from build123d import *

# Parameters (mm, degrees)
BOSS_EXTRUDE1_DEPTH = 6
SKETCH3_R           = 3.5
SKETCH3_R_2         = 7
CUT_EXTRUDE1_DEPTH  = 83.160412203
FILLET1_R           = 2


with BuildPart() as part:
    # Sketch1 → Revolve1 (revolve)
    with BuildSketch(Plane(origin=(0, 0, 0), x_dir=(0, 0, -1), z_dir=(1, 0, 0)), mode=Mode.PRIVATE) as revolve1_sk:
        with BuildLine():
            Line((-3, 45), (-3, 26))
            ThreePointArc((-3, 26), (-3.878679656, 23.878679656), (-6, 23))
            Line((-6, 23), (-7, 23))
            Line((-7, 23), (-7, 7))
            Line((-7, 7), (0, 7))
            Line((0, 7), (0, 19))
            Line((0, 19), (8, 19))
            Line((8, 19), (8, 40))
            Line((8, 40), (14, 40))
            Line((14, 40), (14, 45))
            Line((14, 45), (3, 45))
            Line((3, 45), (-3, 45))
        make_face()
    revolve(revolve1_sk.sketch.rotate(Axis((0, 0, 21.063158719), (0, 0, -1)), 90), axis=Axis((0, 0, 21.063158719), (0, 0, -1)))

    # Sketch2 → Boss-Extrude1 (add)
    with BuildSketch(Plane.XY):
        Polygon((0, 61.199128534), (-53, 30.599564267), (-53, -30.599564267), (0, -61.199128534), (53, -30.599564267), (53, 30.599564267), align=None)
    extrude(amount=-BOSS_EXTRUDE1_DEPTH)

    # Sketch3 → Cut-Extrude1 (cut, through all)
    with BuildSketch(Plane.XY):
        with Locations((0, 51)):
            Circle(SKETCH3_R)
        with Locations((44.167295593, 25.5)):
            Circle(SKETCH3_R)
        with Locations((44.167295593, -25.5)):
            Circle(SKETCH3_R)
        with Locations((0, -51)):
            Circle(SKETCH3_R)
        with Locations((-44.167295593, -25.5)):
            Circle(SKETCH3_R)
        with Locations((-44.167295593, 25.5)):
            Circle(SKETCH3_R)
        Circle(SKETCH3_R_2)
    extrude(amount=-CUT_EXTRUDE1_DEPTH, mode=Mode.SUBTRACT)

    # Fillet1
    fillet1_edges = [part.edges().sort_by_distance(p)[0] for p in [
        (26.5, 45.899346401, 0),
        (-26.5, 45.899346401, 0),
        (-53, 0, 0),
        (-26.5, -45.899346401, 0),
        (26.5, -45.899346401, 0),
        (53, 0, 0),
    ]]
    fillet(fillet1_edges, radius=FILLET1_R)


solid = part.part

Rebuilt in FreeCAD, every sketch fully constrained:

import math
import FreeCAD as App
import Part
import Sketcher
Q = App.Units.Quantity


def edges_at(feature, points):
    """Names of the edges that pass closest to the given points."""
    edges = feature.Shape.Edges
    near = lambda p: min(range(len(edges)), key=lambda i: edges[i].distToShape(Part.Vertex(*p))[0])
    return sorted({f"Edge{near(p) + 1}" for p in points})


def add_polygon(sketch, points):
    """Adds a closed chain of lines whose ends are joined by coincident constraints."""
    first, n = sketch.GeometryCount, len(points)
    for a, b in zip(points, points[1:] + points[:1]):
        sketch.addGeometry(Part.LineSegment(App.Vector(*a, 0), App.Vector(*b, 0)), False)
    for i in range(n):
        sketch.addConstraint(Sketcher.Constraint("Coincident", first + i, 2, first + (i + 1) % n, 1))

doc = App.newDocument("Part")
body = doc.addObject("PartDesign::Body", "Body")

# Sketch on YZ plane
sketch1 = body.newObject("Sketcher::SketchObject", "Sketch")
sketch1.AttachmentSupport = (doc.getObject("YZ_Plane"), [""])
sketch1.MapMode = "FlatFace"
sketch1.addGeometry([
    Part.LineSegment(App.Vector(45, 3, 0), App.Vector(26, 3, 0)),  # 0
    Part.ArcOfCircle(Part.Circle(App.Vector(26, 6, 0), App.Vector(0, 0, 1), 3), math.radians(180), math.radians(270)),  # 1
    Part.LineSegment(App.Vector(23, 6, 0), App.Vector(23, 7, 0)),  # 2
    Part.LineSegment(App.Vector(23, 7, 0), App.Vector(7, 7, 0)),  # 3
    Part.LineSegment(App.Vector(7, 7, 0), App.Vector(7, 0, 0)),  # 4
    Part.LineSegment(App.Vector(7, 0, 0), App.Vector(19, 0, 0)),  # 5
    Part.LineSegment(App.Vector(19, 0, 0), App.Vector(19, -8, 0)),  # 6
    Part.LineSegment(App.Vector(19, -8, 0), App.Vector(40, -8, 0)),  # 7
    Part.LineSegment(App.Vector(40, -8, 0), App.Vector(40, -14, 0)),  # 8
    Part.LineSegment(App.Vector(40, -14, 0), App.Vector(45, -14, 0)),  # 9
    Part.LineSegment(App.Vector(45, -14, 0), App.Vector(45, 3, 0)),  # 10
], False)
sketch1.addConstraint([
    Sketcher.Constraint("Tangent", 0, 2, 1, 2),
    Sketcher.Constraint("Tangent", 1, 1, 2, 1),
    Sketcher.Constraint("Coincident", 2, 2, 3, 1),
    Sketcher.Constraint("Coincident", 3, 2, 4, 1),
    Sketcher.Constraint("Coincident", 4, 2, 5, 1),
    Sketcher.Constraint("Coincident", 5, 2, 6, 1),
    Sketcher.Constraint("Coincident", 6, 2, 7, 1),
    Sketcher.Constraint("Coincident", 7, 2, 8, 1),
    Sketcher.Constraint("Coincident", 8, 2, 9, 1),
    Sketcher.Constraint("Coincident", 9, 2, 10, 1),
    Sketcher.Constraint("Coincident", 10, 2, 0, 1),
    Sketcher.Constraint("Horizontal", 0),
    Sketcher.Constraint("Vertical", 2),
    Sketcher.Constraint("Horizontal", 3),
    Sketcher.Constraint("Vertical", 4),
    Sketcher.Constraint("Horizontal", 5),
    Sketcher.Constraint("Vertical", 6),
    Sketcher.Constraint("Horizontal", 7),
    Sketcher.Constraint("Vertical", 8),
    Sketcher.Constraint("Horizontal", 9),
    Sketcher.Constraint("Vertical", 10),
    Sketcher.Constraint("PointOnObject", 4, 2, -1),
    Sketcher.Constraint("Radius", 1, Q("3 mm")),
    Sketcher.Constraint("DistanceX", 0, 2, 0, 1, Q("19 mm")),
    Sketcher.Constraint("DistanceX", 3, 2, 3, 1, Q("16 mm")),
    Sketcher.Constraint("DistanceX", 5, 1, 5, 2, Q("12 mm")),
    Sketcher.Constraint("DistanceX", 7, 1, 7, 2, Q("21 mm")),
    Sketcher.Constraint("DistanceY", 2, 1, 2, 2, Q("1 mm")),
    Sketcher.Constraint("DistanceY", 4, 2, 4, 1, Q("7 mm")),
    Sketcher.Constraint("DistanceY", 6, 2, 6, 1, Q("8 mm")),
    Sketcher.Constraint("DistanceY", 8, 2, 8, 1, Q("6 mm")),
    Sketcher.Constraint("DistanceX", -1, 1, 1, 3, Q("26 mm")),
])
revolution = body.newObject("PartDesign::Revolution", "Revolution")
revolution.Profile = sketch1
revolution.ReferenceAxis = (sketch1, ["V_Axis"])
revolution.Angle = 360

# Sketch on XY plane
sketch2 = body.newObject("Sketcher::SketchObject", "Sketch001")
sketch2.AttachmentSupport = (doc.getObject("XY_Plane"), [""])
sketch2.MapMode = "FlatFace"
add_polygon(sketch2, [(0, 61.199129), (-53, 30.599564), (-53, -30.599564), (0, -61.199129), (53, -30.599564), (53, 30.599564)])  # lines 0-5
sketch2.addConstraint([
    Sketcher.Constraint("Vertical", 1),
    Sketcher.Constraint("Vertical", 4),
    Sketcher.Constraint("Symmetric", 0, 2, 3, 2, -1, 1),
    Sketcher.Constraint("Symmetric", 2, 2, 5, 2, -1, 1),
    Sketcher.Constraint("PointOnObject", 2, 2, -2),
    Sketcher.Constraint("Parallel", 2, 5),
    Sketcher.Constraint("Horizontal", 1, 2, 3, 2),
    Sketcher.Constraint("Angle", 0, Q("-150 deg")),
    Sketcher.Constraint("DistanceX", 0, 2, -1, 1, Q("53 mm")),
    Sketcher.Constraint("DistanceY", 1, 2, 1, 1, Q("61.199129 mm")),
])
pad1 = body.newObject("PartDesign::Pad", "Pad")
pad1.Profile = sketch2
pad1.Length = 6
pad1.Reversed = True

# Sketch on XY plane
sketch3 = body.newObject("Sketcher::SketchObject", "Sketch002")
sketch3.AttachmentSupport = (doc.getObject("XY_Plane"), [""])
sketch3.MapMode = "FlatFace"
sketch3.addGeometry([
    Part.Circle(App.Vector(0, 51, 0), App.Vector(0, 0, 1), 3.5),  # 0
    Part.Circle(App.Vector(44.167296, 25.5, 0), App.Vector(0, 0, 1), 3.5),  # 1
    Part.Circle(App.Vector(44.167296, -25.5, 0), App.Vector(0, 0, 1), 3.5),  # 2
    Part.Circle(App.Vector(0, -51, 0), App.Vector(0, 0, 1), 3.5),  # 3
    Part.Circle(App.Vector(-44.167296, -25.5, 0), App.Vector(0, 0, 1), 3.5),  # 4
    Part.Circle(App.Vector(-44.167296, 25.5, 0), App.Vector(0, 0, 1), 3.5),  # 5
    Part.Circle(App.Vector(0, 0, 0), App.Vector(0, 0, 1), 7),  # 6
], False)
sketch3.addConstraint([
    Sketcher.Constraint("Coincident", 6, 3, -1, 1),
    Sketcher.Constraint("Equal", 0, 1),
    Sketcher.Constraint("Equal", 1, 2),
    Sketcher.Constraint("Equal", 2, 3),
    Sketcher.Constraint("Equal", 3, 4),
    Sketcher.Constraint("Equal", 4, 5),
    Sketcher.Constraint("Symmetric", 0, 3, 3, 3, -1, 1),
    Sketcher.Constraint("Symmetric", 1, 3, 4, 3, -1, 1),
    Sketcher.Constraint("Symmetric", 2, 3, 5, 3, -1, 1),
    Sketcher.Constraint("Symmetric", 2, 3, 4, 3, -2),
    Sketcher.Constraint("PointOnObject", 0, 3, -2),
    Sketcher.Constraint("Diameter", 0, Q("7 mm")),
    Sketcher.Constraint("Diameter", 6, Q("14 mm")),
    Sketcher.Constraint("DistanceY", -1, 1, 0, 3, Q("51 mm")),
    Sketcher.Constraint("DistanceY", 2, 3, 1, 3, Q("51 mm")),
    Sketcher.Constraint("DistanceX", 4, 3, 2, 3, Q("88.334591 mm")),
])
pocket1 = body.newObject("PartDesign::Pocket", "Pocket")
pocket1.Profile = sketch3
pocket1.Type = "ThroughAll"
doc.recompute()

fillet = body.newObject("PartDesign::Fillet", "Fillet")
fillet.Base = (pocket1, edges_at(pocket1, [
    (26.5, 45.899, 0),
    (-26.5, 45.899, 0),
    (-53, 0, 0),
    (-26.5, -45.899, 0),
    (26.5, -45.899, 0),
    (53, 0, 0),
]))
fillet.Radius = 2

doc.recompute()
